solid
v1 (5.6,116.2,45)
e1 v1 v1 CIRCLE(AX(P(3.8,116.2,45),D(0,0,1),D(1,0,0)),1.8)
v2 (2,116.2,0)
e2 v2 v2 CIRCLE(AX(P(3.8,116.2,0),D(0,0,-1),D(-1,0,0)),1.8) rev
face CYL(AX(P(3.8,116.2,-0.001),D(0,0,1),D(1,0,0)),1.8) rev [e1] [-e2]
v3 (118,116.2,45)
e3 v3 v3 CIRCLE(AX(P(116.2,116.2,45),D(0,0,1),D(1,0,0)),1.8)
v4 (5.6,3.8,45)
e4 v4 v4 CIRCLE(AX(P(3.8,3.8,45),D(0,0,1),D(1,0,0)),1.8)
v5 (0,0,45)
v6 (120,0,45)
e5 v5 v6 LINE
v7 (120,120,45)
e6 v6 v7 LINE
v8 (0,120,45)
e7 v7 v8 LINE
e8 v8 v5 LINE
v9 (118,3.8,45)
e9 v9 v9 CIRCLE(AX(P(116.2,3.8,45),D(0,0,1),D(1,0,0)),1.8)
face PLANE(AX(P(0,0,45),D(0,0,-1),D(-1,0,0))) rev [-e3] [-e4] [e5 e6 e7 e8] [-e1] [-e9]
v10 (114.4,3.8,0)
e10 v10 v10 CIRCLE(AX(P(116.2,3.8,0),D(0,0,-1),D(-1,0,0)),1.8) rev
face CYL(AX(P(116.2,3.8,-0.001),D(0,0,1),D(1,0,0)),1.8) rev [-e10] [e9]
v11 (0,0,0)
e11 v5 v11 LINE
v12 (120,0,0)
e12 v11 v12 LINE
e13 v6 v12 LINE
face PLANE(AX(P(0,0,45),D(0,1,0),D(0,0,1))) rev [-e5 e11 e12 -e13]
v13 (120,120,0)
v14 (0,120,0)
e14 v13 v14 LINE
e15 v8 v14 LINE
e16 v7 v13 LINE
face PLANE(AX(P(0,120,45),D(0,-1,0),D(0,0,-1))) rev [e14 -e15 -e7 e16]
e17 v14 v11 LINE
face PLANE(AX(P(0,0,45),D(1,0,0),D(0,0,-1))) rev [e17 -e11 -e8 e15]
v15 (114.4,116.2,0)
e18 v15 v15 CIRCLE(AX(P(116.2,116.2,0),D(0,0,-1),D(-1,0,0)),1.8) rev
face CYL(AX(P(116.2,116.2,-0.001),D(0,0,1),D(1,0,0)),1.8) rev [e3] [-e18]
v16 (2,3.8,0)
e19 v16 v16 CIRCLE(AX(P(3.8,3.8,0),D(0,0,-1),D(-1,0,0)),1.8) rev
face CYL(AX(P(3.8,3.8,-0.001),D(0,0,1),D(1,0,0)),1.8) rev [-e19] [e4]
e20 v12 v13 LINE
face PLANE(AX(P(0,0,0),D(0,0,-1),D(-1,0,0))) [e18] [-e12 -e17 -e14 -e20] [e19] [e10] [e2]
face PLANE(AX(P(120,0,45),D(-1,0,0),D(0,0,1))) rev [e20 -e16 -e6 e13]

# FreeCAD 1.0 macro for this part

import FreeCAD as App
import Part
import Sketcher

V = App.Vector

doc = App.newDocument("Part")
body = doc.addObject("PartDesign::Body", "Body")

# Sketch on XY plane
sketch1 = body.newObject("Sketcher::SketchObject", "Sketch")
sketch1.AttachmentSupport = (doc.getObject("XY_Plane"), [""])
sketch1.MapMode = "FlatFace"
sketch1.addGeometry([
    Part.LineSegment(V(0, 120, 0), V(0, 0, 0)),
    Part.LineSegment(V(0, 0, 0), V(120, 0, 0)),
    Part.LineSegment(V(120, 0, 0), V(120, 120, 0)),
    Part.LineSegment(V(120, 120, 0), V(0, 120, 0)),
], False)
sketch1.addConstraint([
    Sketcher.Constraint("Coincident", 0, 2, 1, 1),
    Sketcher.Constraint("Coincident", 1, 2, 2, 1),
    Sketcher.Constraint("Coincident", 2, 2, 3, 1),
    Sketcher.Constraint("Coincident", 3, 2, 0, 1),
    Sketcher.Constraint("Vertical", 0),
    Sketcher.Constraint("Horizontal", 1),
    Sketcher.Constraint("Vertical", 2),
    Sketcher.Constraint("Horizontal", 3),
    Sketcher.Constraint("Coincident", 0, 2, -1, 1),
    Sketcher.Constraint("Equal", 3, 0),
    Sketcher.Constraint("DistanceX", 1, 1, 1, 2, 120.0),
])
pad1 = body.newObject("PartDesign::Pad", "Pad")
pad1.Profile = sketch1
pad1.Length = 45

# Sketch on XY plane
sketch2 = body.newObject("Sketcher::SketchObject", "Sketch001")
sketch2.AttachmentSupport = (doc.getObject("XY_Plane"), [""])
sketch2.MapMode = "FlatFace"
sketch2.AttachmentOffset = App.Placement(V(0, 0, 45), App.Rotation())
sketch2.addGeometry(Part.Circle(V(3.8, 116.2, 0), V(0, 0, 1), 1.8), False)
sketch2.addConstraint([
    Sketcher.Constraint("Diameter", 0, 3.6),
    Sketcher.Constraint("DistanceX", -1, 1, 0, 3, 3.8),
    Sketcher.Constraint("DistanceY", -1, 1, 0, 3, 116.2),
])
pocket1 = body.newObject("PartDesign::Pocket", "Pocket")
pocket1.Profile = sketch2
pocket1.Type = "UpToFirst"

# Sketch on XY plane
sketch3 = body.newObject("Sketcher::SketchObject", "Sketch002")
sketch3.AttachmentSupport = (doc.getObject("XY_Plane"), [""])
sketch3.MapMode = "FlatFace"
sketch3.AttachmentOffset = App.Placement(V(0, 0, 45), App.Rotation())
sketch3.addGeometry(Part.Circle(V(116.2, 116.2, 0), V(0, 0, 1), 1.8), False)
sketch3.addConstraint([
    Sketcher.Constraint("Diameter", 0, 3.6),
    Sketcher.Constraint("DistanceX", -1, 1, 0, 3, 116.2),
    Sketcher.Constraint("DistanceY", -1, 1, 0, 3, 116.2),
])
pocket2 = body.newObject("PartDesign::Pocket", "Pocket001")
pocket2.Profile = sketch3
pocket2.Type = "UpToFirst"

# Sketch on XY plane
sketch4 = body.newObject("Sketcher::SketchObject", "Sketch003")
sketch4.AttachmentSupport = (doc.getObject("XY_Plane"), [""])
sketch4.MapMode = "FlatFace"
sketch4.AttachmentOffset = App.Placement(V(0, 0, 45), App.Rotation())
sketch4.addGeometry(Part.Circle(V(116.2, 3.8, 0), V(0, 0, 1), 1.8), False)
sketch4.addConstraint([
    Sketcher.Constraint("Diameter", 0, 3.6),
    Sketcher.Constraint("DistanceX", -1, 1, 0, 3, 116.2),
    Sketcher.Constraint("DistanceY", -1, 1, 0, 3, 3.8),
])
pocket3 = body.newObject("PartDesign::Pocket", "Pocket002")
pocket3.Profile = sketch4
pocket3.Type = "UpToFirst"

# Sketch on XY plane
sketch5 = body.newObject("Sketcher::SketchObject", "Sketch004")
sketch5.AttachmentSupport = (doc.getObject("XY_Plane"), [""])
sketch5.MapMode = "FlatFace"
sketch5.AttachmentOffset = App.Placement(V(0, 0, 45), App.Rotation())
sketch5.addGeometry(Part.Circle(V(3.8, 3.8, 0), V(0, 0, 1), 1.8), False)
sketch5.addConstraint([
    Sketcher.Constraint("Diameter", 0, 3.6),
    Sketcher.Constraint("DistanceX", -1, 1, 0, 3, 3.8),
    Sketcher.Constraint("DistanceY", -1, 1, 0, 3, 3.8),
])
pocket4 = body.newObject("PartDesign::Pocket", "Pocket003")
pocket4.Profile = sketch5
pocket4.Type = "UpToFirst"

doc.recompute()
